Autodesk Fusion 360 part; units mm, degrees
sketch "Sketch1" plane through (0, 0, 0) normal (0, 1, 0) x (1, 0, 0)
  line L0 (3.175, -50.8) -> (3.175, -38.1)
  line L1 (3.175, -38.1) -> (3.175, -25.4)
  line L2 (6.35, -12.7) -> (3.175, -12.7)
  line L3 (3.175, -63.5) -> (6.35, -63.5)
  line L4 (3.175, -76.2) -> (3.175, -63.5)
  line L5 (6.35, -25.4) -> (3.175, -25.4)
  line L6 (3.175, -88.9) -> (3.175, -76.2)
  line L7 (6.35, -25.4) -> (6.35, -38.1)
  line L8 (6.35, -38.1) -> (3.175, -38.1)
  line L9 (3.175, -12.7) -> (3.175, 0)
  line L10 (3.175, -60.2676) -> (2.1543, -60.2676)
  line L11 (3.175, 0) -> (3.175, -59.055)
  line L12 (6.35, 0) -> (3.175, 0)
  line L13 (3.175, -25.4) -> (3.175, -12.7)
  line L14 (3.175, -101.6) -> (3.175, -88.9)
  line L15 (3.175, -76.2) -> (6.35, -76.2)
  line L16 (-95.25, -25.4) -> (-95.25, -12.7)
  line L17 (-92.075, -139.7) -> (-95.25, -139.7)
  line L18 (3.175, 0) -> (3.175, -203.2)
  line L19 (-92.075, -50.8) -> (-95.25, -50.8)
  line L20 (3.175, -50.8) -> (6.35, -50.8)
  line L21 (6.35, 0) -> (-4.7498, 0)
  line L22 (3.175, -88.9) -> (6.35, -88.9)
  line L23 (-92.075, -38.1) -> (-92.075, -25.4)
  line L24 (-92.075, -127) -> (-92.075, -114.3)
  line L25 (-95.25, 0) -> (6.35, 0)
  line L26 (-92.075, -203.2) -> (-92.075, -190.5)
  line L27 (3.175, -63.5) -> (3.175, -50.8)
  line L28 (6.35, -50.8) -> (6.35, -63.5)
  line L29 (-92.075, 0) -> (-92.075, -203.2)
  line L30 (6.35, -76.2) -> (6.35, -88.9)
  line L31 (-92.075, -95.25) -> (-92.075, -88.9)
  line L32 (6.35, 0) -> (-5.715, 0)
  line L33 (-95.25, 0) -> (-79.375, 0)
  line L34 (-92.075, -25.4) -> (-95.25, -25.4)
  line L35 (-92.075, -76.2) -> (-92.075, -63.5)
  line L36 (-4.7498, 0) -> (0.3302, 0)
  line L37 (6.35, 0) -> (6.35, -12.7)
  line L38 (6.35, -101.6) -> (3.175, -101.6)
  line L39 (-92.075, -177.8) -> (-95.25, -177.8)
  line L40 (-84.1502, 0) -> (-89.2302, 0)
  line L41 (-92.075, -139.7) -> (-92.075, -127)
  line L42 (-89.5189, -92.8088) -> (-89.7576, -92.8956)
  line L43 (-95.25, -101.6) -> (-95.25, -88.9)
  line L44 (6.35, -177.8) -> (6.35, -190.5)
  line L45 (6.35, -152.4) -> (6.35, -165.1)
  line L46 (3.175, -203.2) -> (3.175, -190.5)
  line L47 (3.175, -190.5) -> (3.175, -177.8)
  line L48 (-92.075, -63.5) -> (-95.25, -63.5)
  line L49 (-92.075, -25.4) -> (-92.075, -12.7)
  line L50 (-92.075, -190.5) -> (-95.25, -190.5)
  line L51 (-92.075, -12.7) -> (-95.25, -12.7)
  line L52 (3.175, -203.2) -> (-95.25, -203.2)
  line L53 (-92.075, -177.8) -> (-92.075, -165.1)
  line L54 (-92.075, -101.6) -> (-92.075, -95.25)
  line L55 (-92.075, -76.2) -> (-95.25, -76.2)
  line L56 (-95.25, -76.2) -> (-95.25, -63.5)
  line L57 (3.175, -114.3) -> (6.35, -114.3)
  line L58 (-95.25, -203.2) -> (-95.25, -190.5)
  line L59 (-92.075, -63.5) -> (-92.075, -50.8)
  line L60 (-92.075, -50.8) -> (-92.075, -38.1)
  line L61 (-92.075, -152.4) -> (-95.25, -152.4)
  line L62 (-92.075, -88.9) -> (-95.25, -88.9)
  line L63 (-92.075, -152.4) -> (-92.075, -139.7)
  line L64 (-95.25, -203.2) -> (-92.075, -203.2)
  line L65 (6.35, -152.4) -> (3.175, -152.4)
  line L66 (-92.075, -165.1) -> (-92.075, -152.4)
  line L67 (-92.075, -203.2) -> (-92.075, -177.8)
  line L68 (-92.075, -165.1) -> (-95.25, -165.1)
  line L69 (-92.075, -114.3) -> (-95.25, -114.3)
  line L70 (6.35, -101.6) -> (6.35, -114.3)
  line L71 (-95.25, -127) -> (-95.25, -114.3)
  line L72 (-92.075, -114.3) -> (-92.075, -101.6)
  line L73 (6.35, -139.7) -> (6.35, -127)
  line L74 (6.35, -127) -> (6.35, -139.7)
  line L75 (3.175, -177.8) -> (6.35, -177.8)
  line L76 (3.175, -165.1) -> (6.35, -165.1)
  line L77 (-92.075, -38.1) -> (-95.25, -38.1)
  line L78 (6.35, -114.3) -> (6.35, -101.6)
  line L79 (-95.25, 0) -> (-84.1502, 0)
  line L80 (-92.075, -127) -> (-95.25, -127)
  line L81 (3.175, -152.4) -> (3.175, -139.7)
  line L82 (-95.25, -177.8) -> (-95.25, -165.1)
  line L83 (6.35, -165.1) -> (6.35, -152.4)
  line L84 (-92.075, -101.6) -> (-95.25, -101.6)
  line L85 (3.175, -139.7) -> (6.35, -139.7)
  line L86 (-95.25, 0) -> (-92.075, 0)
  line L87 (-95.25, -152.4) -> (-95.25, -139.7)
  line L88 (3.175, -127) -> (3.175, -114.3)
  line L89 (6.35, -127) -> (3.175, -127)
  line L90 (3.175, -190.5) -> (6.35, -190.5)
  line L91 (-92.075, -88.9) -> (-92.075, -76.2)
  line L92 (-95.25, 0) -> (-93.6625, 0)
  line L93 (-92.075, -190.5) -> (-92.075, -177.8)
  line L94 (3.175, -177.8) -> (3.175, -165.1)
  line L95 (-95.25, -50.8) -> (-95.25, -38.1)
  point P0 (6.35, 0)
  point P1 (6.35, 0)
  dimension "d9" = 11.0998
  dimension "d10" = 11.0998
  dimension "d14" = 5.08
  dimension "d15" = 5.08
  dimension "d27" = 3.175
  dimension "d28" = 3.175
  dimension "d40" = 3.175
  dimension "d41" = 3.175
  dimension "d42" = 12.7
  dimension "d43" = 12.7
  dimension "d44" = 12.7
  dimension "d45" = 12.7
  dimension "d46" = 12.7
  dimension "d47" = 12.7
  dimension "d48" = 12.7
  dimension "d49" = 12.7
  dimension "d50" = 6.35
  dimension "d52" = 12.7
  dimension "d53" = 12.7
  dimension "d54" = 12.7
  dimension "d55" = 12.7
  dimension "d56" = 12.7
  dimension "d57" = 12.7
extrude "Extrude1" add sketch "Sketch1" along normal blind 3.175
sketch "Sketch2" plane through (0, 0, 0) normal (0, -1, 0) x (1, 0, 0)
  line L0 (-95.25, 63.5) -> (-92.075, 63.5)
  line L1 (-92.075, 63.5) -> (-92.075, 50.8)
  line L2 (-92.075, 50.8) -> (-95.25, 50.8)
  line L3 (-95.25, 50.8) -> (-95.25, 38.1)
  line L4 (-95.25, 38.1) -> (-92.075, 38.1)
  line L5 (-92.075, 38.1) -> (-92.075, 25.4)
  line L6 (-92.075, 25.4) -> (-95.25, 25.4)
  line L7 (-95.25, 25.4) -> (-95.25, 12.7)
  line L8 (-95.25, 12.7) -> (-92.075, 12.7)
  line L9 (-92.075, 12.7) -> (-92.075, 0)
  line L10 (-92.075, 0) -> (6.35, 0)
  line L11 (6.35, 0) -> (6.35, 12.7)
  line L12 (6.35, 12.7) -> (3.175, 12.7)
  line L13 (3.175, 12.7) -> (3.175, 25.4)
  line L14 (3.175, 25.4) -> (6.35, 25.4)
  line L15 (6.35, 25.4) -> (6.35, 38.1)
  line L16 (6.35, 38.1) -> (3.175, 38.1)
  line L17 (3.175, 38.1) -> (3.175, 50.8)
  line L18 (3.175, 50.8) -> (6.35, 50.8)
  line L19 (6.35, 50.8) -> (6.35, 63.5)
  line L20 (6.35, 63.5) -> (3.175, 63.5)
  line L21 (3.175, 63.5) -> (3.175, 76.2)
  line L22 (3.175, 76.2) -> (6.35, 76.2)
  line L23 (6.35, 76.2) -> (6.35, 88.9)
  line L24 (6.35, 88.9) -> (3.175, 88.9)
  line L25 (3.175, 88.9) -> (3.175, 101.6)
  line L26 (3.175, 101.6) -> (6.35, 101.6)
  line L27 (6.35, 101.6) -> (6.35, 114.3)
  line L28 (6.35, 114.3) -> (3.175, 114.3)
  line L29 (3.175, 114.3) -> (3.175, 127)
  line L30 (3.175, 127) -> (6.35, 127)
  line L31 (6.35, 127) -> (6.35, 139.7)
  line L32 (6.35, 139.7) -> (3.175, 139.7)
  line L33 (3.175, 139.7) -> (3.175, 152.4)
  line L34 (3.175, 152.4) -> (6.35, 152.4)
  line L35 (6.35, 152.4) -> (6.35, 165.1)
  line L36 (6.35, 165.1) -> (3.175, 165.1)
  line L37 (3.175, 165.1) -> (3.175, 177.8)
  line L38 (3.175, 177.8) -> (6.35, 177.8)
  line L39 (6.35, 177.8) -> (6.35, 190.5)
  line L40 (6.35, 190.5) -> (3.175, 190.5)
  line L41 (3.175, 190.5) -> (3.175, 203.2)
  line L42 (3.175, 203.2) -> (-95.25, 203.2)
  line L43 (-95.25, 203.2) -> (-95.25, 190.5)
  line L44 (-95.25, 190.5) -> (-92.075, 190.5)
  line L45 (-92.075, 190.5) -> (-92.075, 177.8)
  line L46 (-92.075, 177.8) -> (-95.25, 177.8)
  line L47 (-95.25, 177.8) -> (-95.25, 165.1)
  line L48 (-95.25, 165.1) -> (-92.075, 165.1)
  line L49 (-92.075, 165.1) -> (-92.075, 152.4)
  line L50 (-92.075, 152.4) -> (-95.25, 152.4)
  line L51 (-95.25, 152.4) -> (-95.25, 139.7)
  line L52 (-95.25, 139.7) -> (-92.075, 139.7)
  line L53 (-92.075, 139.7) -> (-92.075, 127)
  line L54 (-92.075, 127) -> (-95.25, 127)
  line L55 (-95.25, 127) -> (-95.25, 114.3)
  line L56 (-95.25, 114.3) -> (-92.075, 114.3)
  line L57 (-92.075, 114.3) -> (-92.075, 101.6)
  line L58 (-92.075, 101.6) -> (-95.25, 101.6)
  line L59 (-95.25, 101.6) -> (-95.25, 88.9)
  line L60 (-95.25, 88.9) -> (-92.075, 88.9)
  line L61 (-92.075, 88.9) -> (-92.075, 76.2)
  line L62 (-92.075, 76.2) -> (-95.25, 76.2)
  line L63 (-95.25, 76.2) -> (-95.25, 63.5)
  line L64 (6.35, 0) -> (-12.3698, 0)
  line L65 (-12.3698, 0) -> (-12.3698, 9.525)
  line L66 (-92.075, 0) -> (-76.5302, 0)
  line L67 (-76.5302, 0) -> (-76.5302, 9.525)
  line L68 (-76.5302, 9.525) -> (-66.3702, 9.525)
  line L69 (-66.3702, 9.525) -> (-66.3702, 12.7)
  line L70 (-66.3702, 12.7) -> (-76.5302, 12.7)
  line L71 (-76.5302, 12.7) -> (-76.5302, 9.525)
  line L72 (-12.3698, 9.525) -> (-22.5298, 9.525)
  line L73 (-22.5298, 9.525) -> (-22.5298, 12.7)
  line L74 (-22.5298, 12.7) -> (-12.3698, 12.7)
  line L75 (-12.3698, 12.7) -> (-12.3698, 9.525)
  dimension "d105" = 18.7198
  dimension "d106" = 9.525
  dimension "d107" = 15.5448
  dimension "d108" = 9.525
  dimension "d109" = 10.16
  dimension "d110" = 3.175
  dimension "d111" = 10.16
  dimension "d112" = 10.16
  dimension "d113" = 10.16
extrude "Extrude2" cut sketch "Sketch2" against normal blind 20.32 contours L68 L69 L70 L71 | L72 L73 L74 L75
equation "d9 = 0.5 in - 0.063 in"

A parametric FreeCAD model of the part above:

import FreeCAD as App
import Part
import Sketcher
Q = App.Units.Quantity

doc = App.newDocument("Part")
body = doc.addObject("PartDesign::Body", "Body")

# Sketch on XZ plane
sketch1 = body.newObject("Sketcher::SketchObject", "Sketch")
sketch1.AttachmentSupport = (doc.getObject("XZ_Plane"), [""])
sketch1.MapMode = "FlatFace"
sketch1.addGeometry([
    Part.LineSegment(App.Vector(3.175, 76.2, 0), App.Vector(3.175, 63.5, 0)),  # 0
    Part.LineSegment(App.Vector(3.175, 63.5, 0), App.Vector(6.35, 63.5, 0)),  # 1
    Part.LineSegment(App.Vector(6.35, 63.5, 0), App.Vector(6.35, 50.8, 0)),  # 2
    Part.LineSegment(App.Vector(6.35, 50.8, 0), App.Vector(3.175, 50.8, 0)),  # 3
    Part.LineSegment(App.Vector(3.175, 50.8, 0), App.Vector(3.175, 38.1, 0)),  # 4
    Part.LineSegment(App.Vector(3.175, 38.1, 0), App.Vector(6.35, 38.1, 0)),  # 5
    Part.LineSegment(App.Vector(6.35, 38.1, 0), App.Vector(6.35, 25.4, 0)),  # 6
    Part.LineSegment(App.Vector(6.35, 25.4, 0), App.Vector(3.175, 25.4, 0)),  # 7
    Part.LineSegment(App.Vector(3.175, 25.4, 0), App.Vector(3.175, 12.7, 0)),  # 8
    Part.LineSegment(App.Vector(3.175, 12.7, 0), App.Vector(6.35, 12.7, 0)),  # 9
    Part.LineSegment(App.Vector(6.35, 12.7, 0), App.Vector(6.35, 0, 0)),  # 10
    Part.LineSegment(App.Vector(6.35, 0, 0), App.Vector(-92.075, 0, 0)),  # 11
    Part.LineSegment(App.Vector(-92.075, 0, 0), App.Vector(-92.075, 12.7, 0)),  # 12
    Part.LineSegment(App.Vector(-92.075, 12.7, 0), App.Vector(-95.25, 12.7, 0)),  # 13
    Part.LineSegment(App.Vector(-95.25, 12.7, 0), App.Vector(-95.25, 25.4, 0)),  # 14
    Part.LineSegment(App.Vector(-95.25, 25.4, 0), App.Vector(-92.075, 25.4, 0)),  # 15
    Part.LineSegment(App.Vector(-92.075, 25.4, 0), App.Vector(-92.075, 38.1, 0)),  # 16
    Part.LineSegment(App.Vector(-92.075, 38.1, 0), App.Vector(-95.25, 38.1, 0)),  # 17
    Part.LineSegment(App.Vector(-95.25, 38.1, 0), App.Vector(-95.25, 50.8, 0)),  # 18
    Part.LineSegment(App.Vector(-95.25, 50.8, 0), App.Vector(-92.075, 50.8, 0)),  # 19
    Part.LineSegment(App.Vector(-92.075, 50.8, 0), App.Vector(-92.075, 63.5, 0)),  # 20
    Part.LineSegment(App.Vector(-92.075, 63.5, 0), App.Vector(-95.25, 63.5, 0)),  # 21
    Part.LineSegment(App.Vector(-95.25, 63.5, 0), App.Vector(-95.25, 76.2, 0)),  # 22
    Part.LineSegment(App.Vector(-95.25, 76.2, 0), App.Vector(-92.075, 76.2, 0)),  # 23
    Part.LineSegment(App.Vector(-92.075, 76.2, 0), App.Vector(-92.075, 88.9, 0)),  # 24
    Part.LineSegment(App.Vector(-92.075, 88.9, 0), App.Vector(-95.25, 88.9, 0)),  # 25
    Part.LineSegment(App.Vector(-95.25, 88.9, 0), App.Vector(-95.25, 101.6, 0)),  # 26
    Part.LineSegment(App.Vector(-95.25, 101.6, 0), App.Vector(-92.075, 101.6, 0)),  # 27
    Part.LineSegment(App.Vector(-92.075, 101.6, 0), App.Vector(-92.075, 114.3, 0)),  # 28
    Part.LineSegment(App.Vector(-92.075, 114.3, 0), App.Vector(-95.25, 114.3, 0)),  # 29
    Part.LineSegment(App.Vector(-95.25, 114.3, 0), App.Vector(-95.25, 127, 0)),  # 30
    Part.LineSegment(App.Vector(-95.25, 127, 0), App.Vector(-92.075, 127, 0)),  # 31
    Part.LineSegment(App.Vector(-92.075, 127, 0), App.Vector(-92.075, 139.7, 0)),  # 32
    Part.LineSegment(App.Vector(-92.075, 139.7, 0), App.Vector(-95.25, 139.7, 0)),  # 33
    Part.LineSegment(App.Vector(-95.25, 139.7, 0), App.Vector(-95.25, 152.4, 0)),  # 34
    Part.LineSegment(App.Vector(-95.25, 152.4, 0), App.Vector(-92.075, 152.4, 0)),  # 35
    Part.LineSegment(App.Vector(-92.075, 152.4, 0), App.Vector(-92.075, 165.1, 0)),  # 36
    Part.LineSegment(App.Vector(-92.075, 165.1, 0), App.Vector(-95.25, 165.1, 0)),  # 37
    Part.LineSegment(App.Vector(-95.25, 165.1, 0), App.Vector(-95.25, 177.8, 0)),  # 38
    Part.LineSegment(App.Vector(-95.25, 177.8, 0), App.Vector(-92.075, 177.8, 0)),  # 39
    Part.LineSegment(App.Vector(-92.075, 177.8, 0), App.Vector(-92.075, 190.5, 0)),  # 40
    Part.LineSegment(App.Vector(-92.075, 190.5, 0), App.Vector(-95.25, 190.5, 0)),  # 41
    Part.LineSegment(App.Vector(-95.25, 190.5, 0), App.Vector(-95.25, 203.2, 0)),  # 42
    Part.LineSegment(App.Vector(-95.25, 203.2, 0), App.Vector(3.175, 203.2, 0)),  # 43
    Part.LineSegment(App.Vector(3.175, 203.2, 0), App.Vector(3.175, 190.5, 0)),  # 44
    Part.LineSegment(App.Vector(3.175, 190.5, 0), App.Vector(6.35, 190.5, 0)),  # 45
    Part.LineSegment(App.Vector(6.35, 190.5, 0), App.Vector(6.35, 177.8, 0)),  # 46
    Part.LineSegment(App.Vector(6.35, 177.8, 0), App.Vector(3.175, 177.8, 0)),  # 47
    Part.LineSegment(App.Vector(3.175, 177.8, 0), App.Vector(3.175, 165.1, 0)),  # 48
    Part.LineSegment(App.Vector(3.175, 165.1, 0), App.Vector(6.35, 165.1, 0)),  # 49
    Part.LineSegment(App.Vector(6.35, 165.1, 0), App.Vector(6.35, 152.4, 0)),  # 50
    Part.LineSegment(App.Vector(6.35, 152.4, 0), App.Vector(3.175, 152.4, 0)),  # 51
    Part.LineSegment(App.Vector(3.175, 152.4, 0), App.Vector(3.175, 139.7, 0)),  # 52
    Part.LineSegment(App.Vector(3.175, 139.7, 0), App.Vector(6.35, 139.7, 0)),  # 53
    Part.LineSegment(App.Vector(6.35, 139.7, 0), App.Vector(6.35, 127, 0)),  # 54
    Part.LineSegment(App.Vector(6.35, 127, 0), App.Vector(3.175, 127, 0)),  # 55
    Part.LineSegment(App.Vector(3.175, 127, 0), App.Vector(3.175, 114.3, 0)),  # 56
    Part.LineSegment(App.Vector(3.175, 114.3, 0), App.Vector(6.35, 114.3, 0)),  # 57
    Part.LineSegment(App.Vector(6.35, 114.3, 0), App.Vector(6.35, 101.6, 0)),  # 58
    Part.LineSegment(App.Vector(6.35, 101.6, 0), App.Vector(3.175, 101.6, 0)),  # 59
    Part.LineSegment(App.Vector(3.175, 101.6, 0), App.Vector(3.175, 88.9, 0)),  # 60
    Part.LineSegment(App.Vector(3.175, 88.9, 0), App.Vector(6.35, 88.9, 0)),  # 61
    Part.LineSegment(App.Vector(6.35, 88.9, 0), App.Vector(6.35, 76.2, 0)),  # 62
    Part.LineSegment(App.Vector(6.35, 76.2, 0), App.Vector(3.175, 76.2, 0)),  # 63
], False)
sketch1.addConstraint([
    Sketcher.Constraint("Coincident", 0, 2, 1, 1),
    Sketcher.Constraint("Coincident", 1, 2, 2, 1),
    Sketcher.Constraint("Coincident", 2, 2, 3, 1),
    Sketcher.Constraint("Coincident", 3, 2, 4, 1),
    Sketcher.Constraint("Coincident", 4, 2, 5, 1),
    Sketcher.Constraint("Coincident", 5, 2, 6, 1),
    Sketcher.Constraint("Coincident", 6, 2, 7, 1),
    Sketcher.Constraint("Coincident", 7, 2, 8, 1),
    Sketcher.Constraint("Coincident", 8, 2, 9, 1),
    Sketcher.Constraint("Coincident", 9, 2, 10, 1),
    Sketcher.Constraint("Coincident", 10, 2, 11, 1),
    Sketcher.Constraint("Coincident", 11, 2, 12, 1),
    Sketcher.Constraint("Coincident", 12, 2, 13, 1),
    Sketcher.Constraint("Coincident", 13, 2, 14, 1),
    Sketcher.Constraint("Coincident", 14, 2, 15, 1),
    Sketcher.Constraint("Coincident", 15, 2, 16, 1),
    Sketcher.Constraint("Coincident", 16, 2, 17, 1),
    Sketcher.Constraint("Coincident", 17, 2, 18, 1),
    Sketcher.Constraint("Coincident", 18, 2, 19, 1),
    Sketcher.Constraint("Coincident", 19, 2, 20, 1),
    Sketcher.Constraint("Coincident", 20, 2, 21, 1),
    Sketcher.Constraint("Coincident", 21, 2, 22, 1),
    Sketcher.Constraint("Coincident", 22, 2, 23, 1),
    Sketcher.Constraint("Coincident", 23, 2, 24, 1),
    Sketcher.Constraint("Coincident", 24, 2, 25, 1),
    Sketcher.Constraint("Coincident", 25, 2, 26, 1),
    Sketcher.Constraint("Coincident", 26, 2, 27, 1),
    Sketcher.Constraint("Coincident", 27, 2, 28, 1),
    Sketcher.Constraint("Coincident", 28, 2, 29, 1),
    Sketcher.Constraint("Coincident", 29, 2, 30, 1),
    Sketcher.Constraint("Coincident", 30, 2, 31, 1),
    Sketcher.Constraint("Coincident", 31, 2, 32, 1),
    Sketcher.Constraint("Coincident", 32, 2, 33, 1),
    Sketcher.Constraint("Coincident", 33, 2, 34, 1),
    Sketcher.Constraint("Coincident", 34, 2, 35, 1),
    Sketcher.Constraint("Coincident", 35, 2, 36, 1),
    Sketcher.Constraint("Coincident", 36, 2, 37, 1),
    Sketcher.Constraint("Coincident", 37, 2, 38, 1),
    Sketcher.Constraint("Coincident", 38, 2, 39, 1),
    Sketcher.Constraint("Coincident", 39, 2, 40, 1),
    Sketcher.Constraint("Coincident", 40, 2, 41, 1),
    Sketcher.Constraint("Coincident", 41, 2, 42, 1),
    Sketcher.Constraint("Coincident", 42, 2, 43, 1),
    Sketcher.Constraint("Coincident", 43, 2, 44, 1),
    Sketcher.Constraint("Coincident", 44, 2, 45, 1),
    Sketcher.Constraint("Coincident", 45, 2, 46, 1),
    Sketcher.Constraint("Coincident", 46, 2, 47, 1),
    Sketcher.Constraint("Coincident", 47, 2, 48, 1),
    Sketcher.Constraint("Coincident", 48, 2, 49, 1),
    Sketcher.Constraint("Coincident", 49, 2, 50, 1),
    Sketcher.Constraint("Coincident", 50, 2, 51, 1),
    Sketcher.Constraint("Coincident", 51, 2, 52, 1),
    Sketcher.Constraint("Coincident", 52, 2, 53, 1),
    Sketcher.Constraint("Coincident", 53, 2, 54, 1),
    Sketcher.Constraint("Coincident", 54, 2, 55, 1),
    Sketcher.Constraint("Coincident", 55, 2, 56, 1),
    Sketcher.Constraint("Coincident", 56, 2, 57, 1),
    Sketcher.Constraint("Coincident", 57, 2, 58, 1),
    Sketcher.Constraint("Coincident", 58, 2, 59, 1),
    Sketcher.Constraint("Coincident", 59, 2, 60, 1),
    Sketcher.Constraint("Coincident", 60, 2, 61, 1),
    Sketcher.Constraint("Coincident", 61, 2, 62, 1),
    Sketcher.Constraint("Coincident", 62, 2, 63, 1),
    Sketcher.Constraint("Coincident", 63, 2, 0, 1),
    Sketcher.Constraint("Vertical", 0),
    Sketcher.Constraint("Horizontal", 1),
    Sketcher.Constraint("Vertical", 2),
    Sketcher.Constraint("Horizontal", 3),
    Sketcher.Constraint("Vertical", 4),
    Sketcher.Constraint("Horizontal", 5),
    Sketcher.Constraint("Vertical", 6),
    Sketcher.Constraint("Horizontal", 7),
    Sketcher.Constraint("Vertical", 8),
    Sketcher.Constraint("Horizontal", 9),
    Sketcher.Constraint("Vertical", 10),
    Sketcher.Constraint("Horizontal", 11),
    Sketcher.Constraint("Vertical", 12),
    Sketcher.Constraint("Horizontal", 13),
    Sketcher.Constraint("Vertical", 14),
    Sketcher.Constraint("Horizontal", 15),
    Sketcher.Constraint("Vertical", 16),
    Sketcher.Constraint("Horizontal", 17),
    Sketcher.Constraint("Vertical", 18),
    Sketcher.Constraint("Horizontal", 19),
    Sketcher.Constraint("Vertical", 20),
    Sketcher.Constraint("Horizontal", 21),
    Sketcher.Constraint("Vertical", 22),
    Sketcher.Constraint("Horizontal", 23),
    Sketcher.Constraint("Vertical", 24),
    Sketcher.Constraint("Horizontal", 25),
    Sketcher.Constraint("Vertical", 26),
    Sketcher.Constraint("Horizontal", 27),
    Sketcher.Constraint("Vertical", 28),
    Sketcher.Constraint("Horizontal", 29),
    Sketcher.Constraint("Vertical", 30),
    Sketcher.Constraint("Horizontal", 31),
    Sketcher.Constraint("Vertical", 32),
    Sketcher.Constraint("Horizontal", 33),
    Sketcher.Constraint("Vertical", 34),
    Sketcher.Constraint("Horizontal", 35),
    Sketcher.Constraint("Vertical", 36),
    Sketcher.Constraint("Horizontal", 37),
    Sketcher.Constraint("Vertical", 38),
    Sketcher.Constraint("Horizontal", 39),
    Sketcher.Constraint("Vertical", 40),
    Sketcher.Constraint("Horizontal", 41),
    Sketcher.Constraint("Vertical", 42),
    Sketcher.Constraint("Horizontal", 43),
    Sketcher.Constraint("Vertical", 44),
    Sketcher.Constraint("Horizontal", 45),
    Sketcher.Constraint("Vertical", 46),
    Sketcher.Constraint("Horizontal", 47),
    Sketcher.Constraint("Vertical", 48),
    Sketcher.Constraint("Horizontal", 49),
    Sketcher.Constraint("Vertical", 50),
    Sketcher.Constraint("Horizontal", 51),
    Sketcher.Constraint("Vertical", 52),
    Sketcher.Constraint("Horizontal", 53),
    Sketcher.Constraint("Vertical", 54),
    Sketcher.Constraint("Horizontal", 55),
    Sketcher.Constraint("Vertical", 56),
    Sketcher.Constraint("Horizontal", 57),
    Sketcher.Constraint("Vertical", 58),
    Sketcher.Constraint("Horizontal", 59),
    Sketcher.Constraint("Vertical", 60),
    Sketcher.Constraint("Horizontal", 61),
    Sketcher.Constraint("Vertical", 62),
    Sketcher.Constraint("Horizontal", 63),
    Sketcher.Constraint("PointOnObject", 10, 2, -1),
    Sketcher.Constraint("Horizontal", 9, 2, 12, 2),
    Sketcher.Constraint("Horizontal", 7, 2, 14, 2),
    Sketcher.Constraint("Horizontal", 5, 2, 16, 2),
    Sketcher.Constraint("Horizontal", 3, 2, 18, 2),
    Sketcher.Constraint("Horizontal", 1, 2, 20, 2),
    Sketcher.Constraint("Horizontal", 41, 2, 44, 2),
    Sketcher.Constraint("Horizontal", 39, 2, 46, 2),
    Sketcher.Constraint("Horizontal", 37, 2, 48, 2),
    Sketcher.Constraint("Horizontal", 35, 2, 50, 2),
    Sketcher.Constraint("Horizontal", 33, 2, 52, 2),
    Sketcher.Constraint("Horizontal", 31, 2, 54, 2),
    Sketcher.Constraint("Horizontal", 29, 2, 56, 2),
    Sketcher.Constraint("Horizontal", 27, 2, 58, 2),
    Sketcher.Constraint("Horizontal", 25, 2, 60, 2),
    Sketcher.Constraint("Horizontal", 23, 2, 62, 2),
    Sketcher.Constraint("Vertical", 0, 2, 3, 2),
    Sketcher.Constraint("Vertical", 2, 2, 5, 2),
    Sketcher.Constraint("Vertical", 4, 2, 7, 2),
    Sketcher.Constraint("Vertical", 6, 2, 9, 2),
    Sketcher.Constraint("Vertical", 12, 2, 15, 2),
    Sketcher.Constraint("Vertical", 14, 2, 17, 2),
    Sketcher.Constraint("Vertical", 16, 2, 19, 2),
    Sketcher.Constraint("Vertical", 18, 2, 21, 2),
    Sketcher.Constraint("Vertical", 20, 2, 23, 2),
    Sketcher.Constraint("Vertical", 22, 2, 25, 2),
    Sketcher.Constraint("Vertical", 24, 2, 27, 2),
    Sketcher.Constraint("Vertical", 26, 2, 29, 2),
    Sketcher.Constraint("Vertical", 28, 2, 31, 2),
    Sketcher.Constraint("Vertical", 30, 2, 33, 2),
    Sketcher.Constraint("Vertical", 32, 2, 35, 2),
    Sketcher.Constraint("Vertical", 34, 2, 37, 2),
    Sketcher.Constraint("Vertical", 36, 2, 39, 2),
    Sketcher.Constraint("Vertical", 38, 2, 41, 2),
    Sketcher.Constraint("Vertical", 8, 2, 43, 2),
    Sketcher.Constraint("Vertical", 10, 2, 45, 2),
    Sketcher.Constraint("Vertical", 44, 2, 47, 2),
    Sketcher.Constraint("Vertical", 46, 2, 49, 2),
    Sketcher.Constraint("Vertical", 48, 2, 51, 2),
    Sketcher.Constraint("Vertical", 50, 2, 53, 2),
    Sketcher.Constraint("Vertical", 52, 2, 55, 2),
    Sketcher.Constraint("Vertical", 54, 2, 57, 2),
    Sketcher.Constraint("Vertical", 56, 2, 59, 2),
    Sketcher.Constraint("Vertical", 58, 2, 61, 2),
    Sketcher.Constraint("Equal", 9, 13),
    Sketcher.Constraint("Equal", 0, 2),
    Sketcher.Constraint("Equal", 2, 4),
    Sketcher.Constraint("Equal", 4, 6),
    Sketcher.Constraint("Equal", 6, 8),
    Sketcher.Constraint("Equal", 8, 10),
    Sketcher.Constraint("Equal", 22, 24),
    Sketcher.Constraint("Equal", 24, 26),
    Sketcher.Constraint("Equal", 26, 28),
    Sketcher.Constraint("Equal", 28, 30),
    Sketcher.Constraint("Equal", 30, 32),
    Sketcher.Constraint("Equal", 32, 34),
    Sketcher.Constraint("Equal", 34, 36),
    Sketcher.Constraint("Equal", 36, 38),
    Sketcher.Constraint("Equal", 38, 40),
    Sketcher.Constraint("Equal", 40, 42),
    Sketcher.Constraint("DistanceY", 0, 2, 0, 1, Q("0.5 in")),
    Sketcher.Constraint("DistanceX", 1, 1, 1, 2, Q("0.125 in")),
    Sketcher.Constraint("DistanceX", -1, 1, 1, 2, Q("0.25 in")),
    Sketcher.Constraint("DistanceX", 11, 2, 11, 1, Q("3.875 in")),
])
pad1 = body.newObject("PartDesign::Pad", "Pad")
pad1.Profile = sketch1
pad1.Length = Q("0.125 in")
pad1.Reversed = True

# Sketch on XZ plane
sketch2 = body.newObject("Sketcher::SketchObject", "Sketch001")
sketch2.AttachmentSupport = (doc.getObject("XZ_Plane"), [""])
sketch2.MapMode = "FlatFace"
sketch2.addGeometry([
    Part.LineSegment(App.Vector(-76.5302, 12.7, 0), App.Vector(-76.5302, 9.525, 0)),  # 0
    Part.LineSegment(App.Vector(-76.5302, 9.525, 0), App.Vector(-66.3702, 9.525, 0)),  # 1
    Part.LineSegment(App.Vector(-66.3702, 9.525, 0), App.Vector(-66.3702, 12.7, 0)),  # 2
    Part.LineSegment(App.Vector(-66.3702, 12.7, 0), App.Vector(-76.5302, 12.7, 0)),  # 3
    Part.LineSegment(App.Vector(-22.5298, 9.525, 0), App.Vector(-12.3698, 9.525, 0)),  # 4
    Part.LineSegment(App.Vector(-12.3698, 9.525, 0), App.Vector(-12.3698, 12.7, 0)),  # 5
    Part.LineSegment(App.Vector(-12.3698, 12.7, 0), App.Vector(-22.5298, 12.7, 0)),  # 6
    Part.LineSegment(App.Vector(-22.5298, 12.7, 0), App.Vector(-22.5298, 9.525, 0)),  # 7
], False)
sketch2.addConstraint([
    Sketcher.Constraint("Coincident", 0, 2, 1, 1),
    Sketcher.Constraint("Coincident", 1, 2, 2, 1),
    Sketcher.Constraint("Coincident", 2, 2, 3, 1),
    Sketcher.Constraint("Coincident", 3, 2, 0, 1),
    Sketcher.Constraint("Coincident", 4, 2, 5, 1),
    Sketcher.Constraint("Coincident", 5, 2, 6, 1),
    Sketcher.Constraint("Coincident", 6, 2, 7, 1),
    Sketcher.Constraint("Coincident", 7, 2, 4, 1),
    Sketcher.Constraint("Vertical", 0),
    Sketcher.Constraint("Horizontal", 1),
    Sketcher.Constraint("Vertical", 2),
    Sketcher.Constraint("Horizontal", 3),
    Sketcher.Constraint("Horizontal", 4),
    Sketcher.Constraint("Vertical", 5),
    Sketcher.Constraint("Horizontal", 6),
    Sketcher.Constraint("Vertical", 7),
    Sketcher.Constraint("Horizontal", 1, 2, 4, 2),
    Sketcher.Constraint("Horizontal", 3, 2, 5, 2),
    Sketcher.Constraint("Equal", 3, 4),
    Sketcher.Constraint("DistanceX", 1, 1, 1, 2, Q("0.4 in")),
    Sketcher.Constraint("DistanceY", 0, 2, 0, 1, Q("0.125 in")),
    Sketcher.Constraint("DistanceY", -1, 1, 0, 2, Q("0.375 in")),
    Sketcher.Constraint("DistanceX", 0, 2, -1, 1, Q("3.013 in")),
    Sketcher.Constraint("DistanceX", 4, 2, -1, 1, Q("0.487 in")),
])
pocket1 = body.newObject("PartDesign::Pocket", "Pocket")
pocket1.Profile = sketch2
pocket1.Length = Q("0.8 in")

doc.recompute()
